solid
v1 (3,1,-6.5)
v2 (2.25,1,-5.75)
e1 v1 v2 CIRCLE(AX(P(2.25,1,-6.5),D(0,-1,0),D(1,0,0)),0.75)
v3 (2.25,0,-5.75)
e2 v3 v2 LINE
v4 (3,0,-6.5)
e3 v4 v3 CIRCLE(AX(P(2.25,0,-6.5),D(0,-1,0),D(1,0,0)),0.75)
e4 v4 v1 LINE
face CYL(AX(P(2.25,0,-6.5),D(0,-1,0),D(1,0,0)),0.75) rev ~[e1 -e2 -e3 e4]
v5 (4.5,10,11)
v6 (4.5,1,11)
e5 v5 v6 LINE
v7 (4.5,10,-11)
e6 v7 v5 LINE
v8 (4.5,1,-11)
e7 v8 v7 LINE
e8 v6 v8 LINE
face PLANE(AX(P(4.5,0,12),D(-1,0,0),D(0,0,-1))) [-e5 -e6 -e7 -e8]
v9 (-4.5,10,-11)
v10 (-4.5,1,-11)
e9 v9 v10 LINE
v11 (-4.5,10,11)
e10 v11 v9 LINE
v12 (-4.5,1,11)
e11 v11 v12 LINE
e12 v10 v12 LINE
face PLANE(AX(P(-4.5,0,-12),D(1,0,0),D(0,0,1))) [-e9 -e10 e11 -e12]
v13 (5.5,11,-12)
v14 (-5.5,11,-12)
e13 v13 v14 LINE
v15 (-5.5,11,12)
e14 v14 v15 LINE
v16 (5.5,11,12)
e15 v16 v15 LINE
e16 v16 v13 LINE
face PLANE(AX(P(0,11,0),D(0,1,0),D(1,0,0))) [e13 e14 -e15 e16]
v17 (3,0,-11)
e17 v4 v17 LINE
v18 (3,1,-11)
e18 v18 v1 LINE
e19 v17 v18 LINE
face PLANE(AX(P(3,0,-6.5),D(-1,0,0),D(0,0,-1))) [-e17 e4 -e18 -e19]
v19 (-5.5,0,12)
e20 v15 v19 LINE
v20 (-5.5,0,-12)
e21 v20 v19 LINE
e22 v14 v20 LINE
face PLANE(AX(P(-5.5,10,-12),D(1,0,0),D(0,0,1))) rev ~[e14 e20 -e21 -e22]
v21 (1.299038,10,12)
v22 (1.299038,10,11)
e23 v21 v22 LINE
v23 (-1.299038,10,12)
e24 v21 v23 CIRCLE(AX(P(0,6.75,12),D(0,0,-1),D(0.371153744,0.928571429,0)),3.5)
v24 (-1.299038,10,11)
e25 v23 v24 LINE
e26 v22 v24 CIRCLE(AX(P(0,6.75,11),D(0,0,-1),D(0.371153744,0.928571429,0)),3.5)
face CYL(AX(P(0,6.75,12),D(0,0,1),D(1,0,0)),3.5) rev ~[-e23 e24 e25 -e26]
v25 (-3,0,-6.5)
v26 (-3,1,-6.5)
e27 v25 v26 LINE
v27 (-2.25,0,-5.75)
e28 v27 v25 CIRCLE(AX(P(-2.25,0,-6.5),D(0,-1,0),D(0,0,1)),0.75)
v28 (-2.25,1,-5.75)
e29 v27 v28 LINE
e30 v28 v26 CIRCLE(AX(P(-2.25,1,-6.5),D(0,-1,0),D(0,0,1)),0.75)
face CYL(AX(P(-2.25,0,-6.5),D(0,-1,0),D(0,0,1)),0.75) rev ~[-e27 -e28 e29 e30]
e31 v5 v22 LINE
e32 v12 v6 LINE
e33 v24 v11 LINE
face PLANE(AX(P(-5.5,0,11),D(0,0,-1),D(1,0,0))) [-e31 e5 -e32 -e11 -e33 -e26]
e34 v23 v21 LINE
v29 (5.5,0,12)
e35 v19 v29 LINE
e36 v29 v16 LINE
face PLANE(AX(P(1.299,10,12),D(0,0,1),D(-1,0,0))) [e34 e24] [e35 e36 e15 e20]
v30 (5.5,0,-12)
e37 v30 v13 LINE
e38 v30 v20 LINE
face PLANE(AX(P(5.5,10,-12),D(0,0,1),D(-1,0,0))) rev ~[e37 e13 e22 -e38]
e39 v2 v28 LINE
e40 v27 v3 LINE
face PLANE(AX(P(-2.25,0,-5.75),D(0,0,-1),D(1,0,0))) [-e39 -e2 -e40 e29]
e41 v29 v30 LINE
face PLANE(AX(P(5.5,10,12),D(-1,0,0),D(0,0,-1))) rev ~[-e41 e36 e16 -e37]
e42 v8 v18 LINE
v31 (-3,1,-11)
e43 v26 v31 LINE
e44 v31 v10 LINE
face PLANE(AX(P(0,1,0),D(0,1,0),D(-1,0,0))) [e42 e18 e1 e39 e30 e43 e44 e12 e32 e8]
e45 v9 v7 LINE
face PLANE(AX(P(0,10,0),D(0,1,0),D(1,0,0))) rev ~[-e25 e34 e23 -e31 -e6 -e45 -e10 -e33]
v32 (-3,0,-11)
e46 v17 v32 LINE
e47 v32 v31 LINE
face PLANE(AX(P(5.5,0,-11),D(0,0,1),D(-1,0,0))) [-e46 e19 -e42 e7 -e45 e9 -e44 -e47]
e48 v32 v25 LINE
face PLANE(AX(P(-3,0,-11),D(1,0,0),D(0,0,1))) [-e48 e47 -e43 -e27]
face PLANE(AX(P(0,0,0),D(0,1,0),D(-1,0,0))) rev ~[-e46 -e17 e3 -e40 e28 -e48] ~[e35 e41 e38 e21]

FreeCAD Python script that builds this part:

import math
import FreeCAD as App
import Part
import Sketcher
Q = App.Units.Quantity


def faces_at(feature, points):
    """Names of the faces that lie closest to the given points."""
    faces = feature.Shape.Faces
    near = lambda p: min(range(len(faces)), key=lambda i: faces[i].distToShape(Part.Vertex(*p))[0])
    return sorted({f"Face{near(p) + 1}" for p in points})

doc = App.newDocument("Part")
body = doc.addObject("PartDesign::Body", "Body")

sketch1 = doc.addObject("Sketcher::SketchObject", "Sketch")
body.addObject(sketch1)
sketch1.AttachmentSupport = (doc.XZ_Plane, [""])
sketch1.MapMode = "FlatFace"
sketch1.addGeometry([
    Part.LineSegment(App.Vector(6, 12, 0), App.Vector(6, -12, 0)),
    Part.LineSegment(App.Vector(6, -12, 0), App.Vector(-6, -12, 0)),
    Part.LineSegment(App.Vector(-6, -12, 0), App.Vector(-6, 12, 0)),
    Part.LineSegment(App.Vector(-6, 12, 0), App.Vector(6, 12, 0)),
], False)
sketch1.addConstraint([
    Sketcher.Constraint("Coincident", 0, 2, 1, 1),
    Sketcher.Constraint("Coincident", 1, 2, 2, 1),
    Sketcher.Constraint("Coincident", 2, 2, 3, 1),
    Sketcher.Constraint("Coincident", 3, 2, 0, 1),
    Sketcher.Constraint("Vertical", 0),
    Sketcher.Constraint("Horizontal", 1),
    Sketcher.Constraint("Vertical", 2),
    Sketcher.Constraint("Horizontal", 3),
    Sketcher.Constraint("Symmetric", 0, 2, 2, 2, -1, 1),
    Sketcher.Constraint("DistanceX", 1, 2, 1, 1, Q("11 mm")),
    Sketcher.Constraint("DistanceY", 0, 2, 0, 1, Q("24 mm")),
])
pad1 = doc.addObject("PartDesign::Pad", "Pad")
body.addObject(pad1)
pad1.Profile = sketch1
pad1.Length = 10
pad1.Reversed = True
doc.recompute()

thickness = doc.addObject("PartDesign::Thickness", "Thickness")
body.addObject(thickness)
thickness.Base = (pad1, faces_at(pad1, [(1.833, 10, 4)]))
thickness.Value = 1
thickness.Reversed = True
thickness.Join = "Intersection"

sketch2 = doc.addObject("Sketcher::SketchObject", "Sketch001")
body.addObject(sketch2)
sketch2.AttachmentSupport = (doc.XY_Plane, [""])
sketch2.MapMode = "FlatFace"
sketch2.AttachmentOffset = App.Placement(App.Vector(0, 0, 12), App.Rotation())
sketch2.addGeometry([
    Part.LineSegment(App.Vector(1.3, 10, 0), App.Vector(-1.3, 10, 0)),
    Part.ArcOfCircle(Part.Circle(App.Vector(0, 6.8, 0), App.Vector(0, 0, 1), 3.5), math.radians(112), math.radians(428)),
], False)
sketch2.addConstraint([
    Sketcher.Constraint("Coincident", 0, 1, 1, 2),
    Sketcher.Constraint("Coincident", 1, 1, 0, 2),
    Sketcher.Constraint("Horizontal", 0),
    Sketcher.Constraint("PointOnObject", 1, 3, -2),
    Sketcher.Constraint("Radius", 1, Q("3.5 mm")),
    Sketcher.Constraint("DistanceY", -1, 1, 0, 1, Q("10 mm")),
    Sketcher.Constraint("DistanceX", 0, 2, 0, 1, Q("2.598 mm")),
])
pocket1 = doc.addObject("PartDesign::Pocket", "Pocket")
body.addObject(pocket1)
pocket1.Profile = sketch2
pocket1.Length = 9

sketch3 = doc.addObject("Sketcher::SketchObject", "Sketch002")
body.addObject(sketch3)
sketch3.AttachmentSupport = (doc.XZ_Plane, [""])
sketch3.MapMode = "FlatFace"
sketch3.AttachmentOffset = App.Placement(App.Vector(0, 0, -10), App.Rotation())
sketch3.addGeometry([
    Part.LineSegment(App.Vector(-6, 12, 0), App.Vector(6, 12, 0)),
    Part.LineSegment(App.Vector(6, 12, 0), App.Vector(6, -12, 0)),
    Part.LineSegment(App.Vector(6, -12, 0), App.Vector(-6, -12, 0)),
    Part.LineSegment(App.Vector(-6, -12, 0), App.Vector(-6, 12, 0)),
], False)
sketch3.addConstraint([
    Sketcher.Constraint("Coincident", 0, 2, 1, 1),
    Sketcher.Constraint("Coincident", 1, 2, 2, 1),
    Sketcher.Constraint("Coincident", 2, 2, 3, 1),
    Sketcher.Constraint("Coincident", 3, 2, 0, 1),
    Sketcher.Constraint("Horizontal", 0),
    Sketcher.Constraint("Vertical", 1),
    Sketcher.Constraint("Horizontal", 2),
    Sketcher.Constraint("Vertical", 3),
    Sketcher.Constraint("Symmetric", 0, 2, 2, 2, -1, 1),
    Sketcher.Constraint("DistanceX", 0, 1, 0, 2, Q("11 mm")),
    Sketcher.Constraint("DistanceY", 1, 2, 1, 1, Q("24 mm")),
])
pad2 = doc.addObject("PartDesign::Pad", "Pad001")
body.addObject(pad2)
pad2.Profile = sketch3
pad2.Length = 1
pad2.Reversed = True

sketch4 = doc.addObject("Sketcher::SketchObject", "Sketch003")
body.addObject(sketch4)
sketch4.AttachmentSupport = (doc.XZ_Plane, [""])
sketch4.MapMode = "FlatFace"
sketch4.addGeometry([
    Part.LineSegment(App.Vector(-3, -11, 0), App.Vector(3, -11, 0)),
    Part.LineSegment(App.Vector(3, -11, 0), App.Vector(3, -6.5, 0)),
    Part.ArcOfCircle(Part.Circle(App.Vector(2.2, -6.5, 0), App.Vector(0, 0, 1), 0.8), math.radians(0), math.radians(90)),
    Part.LineSegment(App.Vector(2.2, -5.8, 0), App.Vector(-2.2, -5.8, 0)),
    Part.ArcOfCircle(Part.Circle(App.Vector(-2.2, -6.5, 0), App.Vector(0, 0, 1), 0.8), math.radians(90), math.radians(180)),
    Part.LineSegment(App.Vector(-3, -6.5, 0), App.Vector(-3, -11, 0)),
], False)
sketch4.addConstraint([
    Sketcher.Constraint("Coincident", 0, 2, 1, 1),
    Sketcher.Constraint("Tangent", 1, 2, 2, 1),
    Sketcher.Constraint("Tangent", 2, 2, 3, 1),
    Sketcher.Constraint("Tangent", 3, 2, 4, 1),
    Sketcher.Constraint("Tangent", 4, 2, 5, 1),
    Sketcher.Constraint("Coincident", 5, 2, 0, 1),
    Sketcher.Constraint("Horizontal", 0),
    Sketcher.Constraint("Vertical", 1),
    Sketcher.Constraint("Horizontal", 3),
    Sketcher.Constraint("Vertical", 5),
    Sketcher.Constraint("Equal", 2, 4),
    Sketcher.Constraint("Equal", 3, 1),
    Sketcher.Constraint("DistanceX", 0, 1, 0, 2, Q("6 mm")),
    Sketcher.Constraint("Radius", 2, Q("0.75 mm")),
    Sketcher.Constraint("DistanceX", -1, 1, 0, 2, Q("3 mm")),
    Sketcher.Constraint("DistanceY", 0, 2, -1, 1, Q("11 mm")),
])
pocket2 = doc.addObject("PartDesign::Pocket", "Pocket001")
body.addObject(pocket2)
pocket2.Profile = sketch4
pocket2.Length = 10

doc.recompute()
